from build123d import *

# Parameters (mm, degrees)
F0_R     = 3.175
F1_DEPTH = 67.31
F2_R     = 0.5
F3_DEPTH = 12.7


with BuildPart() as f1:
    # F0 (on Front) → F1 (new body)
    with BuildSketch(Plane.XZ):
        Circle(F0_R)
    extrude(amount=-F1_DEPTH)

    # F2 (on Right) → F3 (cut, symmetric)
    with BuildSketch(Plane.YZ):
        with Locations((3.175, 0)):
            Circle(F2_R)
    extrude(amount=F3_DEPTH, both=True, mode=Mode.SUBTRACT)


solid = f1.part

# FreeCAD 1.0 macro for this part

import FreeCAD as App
import Part
import Sketcher
from FreeCAD import Vector
Q = App.Units.Quantity

doc = App.newDocument("Part")
params = doc.addObject("Spreadsheet::Sheet", "Params")
for row, (alias, value) in enumerate([
    ("sketch1_diameter", "0.25 in"),
    ("pad1_length", "2.65 in"),
    ("pocket1_length", "1 in"),
], start=1):
    params.set(f"A{row}", alias)
    params.set(f"B{row}", "=" + value)
    params.setAlias(f"B{row}", alias)

body = doc.addObject("PartDesign::Body", "Body")

# Sketch on XZ plane
sketch1 = doc.addObject("Sketcher::SketchObject", "Sketch")
body.addObject(sketch1)
sketch1.AttachmentSupport = (doc.XZ_Plane, [""])
sketch1.MapMode = "FlatFace"
sketch1.addGeometry(Part.Circle(Vector(0, 0, 0), Vector(0, 0, 1), 3.2), False)
sketch1.addConstraint([
    Sketcher.Constraint("Coincident", 0, 3, -1, 1),
    Sketcher.Constraint("Diameter", 0, Q("0.25 in")),
])
sketch1.setExpression("Constraints[1]", "Params.sketch1_diameter")
pad1 = doc.addObject("PartDesign::Pad", "Pad")
body.addObject(pad1)
pad1.Profile = sketch1
pad1.setExpression("Length", "Params.pad1_length")
pad1.Reversed = True

# Sketch on YZ plane
sketch2 = doc.addObject("Sketcher::SketchObject", "Sketch001")
body.addObject(sketch2)
sketch2.AttachmentSupport = (doc.YZ_Plane, [""])
sketch2.MapMode = "FlatFace"
sketch2.addGeometry(Part.Circle(Vector(3.2, 0, 0), Vector(0, 0, 1), 0.5), False)
sketch2.addConstraint([
    Sketcher.Constraint("PointOnObject", 0, 3, -1),
    Sketcher.Constraint("Diameter", 0, 1.0),
    Sketcher.Constraint("DistanceX", -1, 1, 0, 3, Q("0.125 in")),
])
pocket1 = doc.addObject("PartDesign::Pocket", "Pocket")
body.addObject(pocket1)
pocket1.Profile = sketch2
pocket1.setExpression("Length", "Params.pocket1_length")
pocket1.Midplane = True

doc.recompute()
